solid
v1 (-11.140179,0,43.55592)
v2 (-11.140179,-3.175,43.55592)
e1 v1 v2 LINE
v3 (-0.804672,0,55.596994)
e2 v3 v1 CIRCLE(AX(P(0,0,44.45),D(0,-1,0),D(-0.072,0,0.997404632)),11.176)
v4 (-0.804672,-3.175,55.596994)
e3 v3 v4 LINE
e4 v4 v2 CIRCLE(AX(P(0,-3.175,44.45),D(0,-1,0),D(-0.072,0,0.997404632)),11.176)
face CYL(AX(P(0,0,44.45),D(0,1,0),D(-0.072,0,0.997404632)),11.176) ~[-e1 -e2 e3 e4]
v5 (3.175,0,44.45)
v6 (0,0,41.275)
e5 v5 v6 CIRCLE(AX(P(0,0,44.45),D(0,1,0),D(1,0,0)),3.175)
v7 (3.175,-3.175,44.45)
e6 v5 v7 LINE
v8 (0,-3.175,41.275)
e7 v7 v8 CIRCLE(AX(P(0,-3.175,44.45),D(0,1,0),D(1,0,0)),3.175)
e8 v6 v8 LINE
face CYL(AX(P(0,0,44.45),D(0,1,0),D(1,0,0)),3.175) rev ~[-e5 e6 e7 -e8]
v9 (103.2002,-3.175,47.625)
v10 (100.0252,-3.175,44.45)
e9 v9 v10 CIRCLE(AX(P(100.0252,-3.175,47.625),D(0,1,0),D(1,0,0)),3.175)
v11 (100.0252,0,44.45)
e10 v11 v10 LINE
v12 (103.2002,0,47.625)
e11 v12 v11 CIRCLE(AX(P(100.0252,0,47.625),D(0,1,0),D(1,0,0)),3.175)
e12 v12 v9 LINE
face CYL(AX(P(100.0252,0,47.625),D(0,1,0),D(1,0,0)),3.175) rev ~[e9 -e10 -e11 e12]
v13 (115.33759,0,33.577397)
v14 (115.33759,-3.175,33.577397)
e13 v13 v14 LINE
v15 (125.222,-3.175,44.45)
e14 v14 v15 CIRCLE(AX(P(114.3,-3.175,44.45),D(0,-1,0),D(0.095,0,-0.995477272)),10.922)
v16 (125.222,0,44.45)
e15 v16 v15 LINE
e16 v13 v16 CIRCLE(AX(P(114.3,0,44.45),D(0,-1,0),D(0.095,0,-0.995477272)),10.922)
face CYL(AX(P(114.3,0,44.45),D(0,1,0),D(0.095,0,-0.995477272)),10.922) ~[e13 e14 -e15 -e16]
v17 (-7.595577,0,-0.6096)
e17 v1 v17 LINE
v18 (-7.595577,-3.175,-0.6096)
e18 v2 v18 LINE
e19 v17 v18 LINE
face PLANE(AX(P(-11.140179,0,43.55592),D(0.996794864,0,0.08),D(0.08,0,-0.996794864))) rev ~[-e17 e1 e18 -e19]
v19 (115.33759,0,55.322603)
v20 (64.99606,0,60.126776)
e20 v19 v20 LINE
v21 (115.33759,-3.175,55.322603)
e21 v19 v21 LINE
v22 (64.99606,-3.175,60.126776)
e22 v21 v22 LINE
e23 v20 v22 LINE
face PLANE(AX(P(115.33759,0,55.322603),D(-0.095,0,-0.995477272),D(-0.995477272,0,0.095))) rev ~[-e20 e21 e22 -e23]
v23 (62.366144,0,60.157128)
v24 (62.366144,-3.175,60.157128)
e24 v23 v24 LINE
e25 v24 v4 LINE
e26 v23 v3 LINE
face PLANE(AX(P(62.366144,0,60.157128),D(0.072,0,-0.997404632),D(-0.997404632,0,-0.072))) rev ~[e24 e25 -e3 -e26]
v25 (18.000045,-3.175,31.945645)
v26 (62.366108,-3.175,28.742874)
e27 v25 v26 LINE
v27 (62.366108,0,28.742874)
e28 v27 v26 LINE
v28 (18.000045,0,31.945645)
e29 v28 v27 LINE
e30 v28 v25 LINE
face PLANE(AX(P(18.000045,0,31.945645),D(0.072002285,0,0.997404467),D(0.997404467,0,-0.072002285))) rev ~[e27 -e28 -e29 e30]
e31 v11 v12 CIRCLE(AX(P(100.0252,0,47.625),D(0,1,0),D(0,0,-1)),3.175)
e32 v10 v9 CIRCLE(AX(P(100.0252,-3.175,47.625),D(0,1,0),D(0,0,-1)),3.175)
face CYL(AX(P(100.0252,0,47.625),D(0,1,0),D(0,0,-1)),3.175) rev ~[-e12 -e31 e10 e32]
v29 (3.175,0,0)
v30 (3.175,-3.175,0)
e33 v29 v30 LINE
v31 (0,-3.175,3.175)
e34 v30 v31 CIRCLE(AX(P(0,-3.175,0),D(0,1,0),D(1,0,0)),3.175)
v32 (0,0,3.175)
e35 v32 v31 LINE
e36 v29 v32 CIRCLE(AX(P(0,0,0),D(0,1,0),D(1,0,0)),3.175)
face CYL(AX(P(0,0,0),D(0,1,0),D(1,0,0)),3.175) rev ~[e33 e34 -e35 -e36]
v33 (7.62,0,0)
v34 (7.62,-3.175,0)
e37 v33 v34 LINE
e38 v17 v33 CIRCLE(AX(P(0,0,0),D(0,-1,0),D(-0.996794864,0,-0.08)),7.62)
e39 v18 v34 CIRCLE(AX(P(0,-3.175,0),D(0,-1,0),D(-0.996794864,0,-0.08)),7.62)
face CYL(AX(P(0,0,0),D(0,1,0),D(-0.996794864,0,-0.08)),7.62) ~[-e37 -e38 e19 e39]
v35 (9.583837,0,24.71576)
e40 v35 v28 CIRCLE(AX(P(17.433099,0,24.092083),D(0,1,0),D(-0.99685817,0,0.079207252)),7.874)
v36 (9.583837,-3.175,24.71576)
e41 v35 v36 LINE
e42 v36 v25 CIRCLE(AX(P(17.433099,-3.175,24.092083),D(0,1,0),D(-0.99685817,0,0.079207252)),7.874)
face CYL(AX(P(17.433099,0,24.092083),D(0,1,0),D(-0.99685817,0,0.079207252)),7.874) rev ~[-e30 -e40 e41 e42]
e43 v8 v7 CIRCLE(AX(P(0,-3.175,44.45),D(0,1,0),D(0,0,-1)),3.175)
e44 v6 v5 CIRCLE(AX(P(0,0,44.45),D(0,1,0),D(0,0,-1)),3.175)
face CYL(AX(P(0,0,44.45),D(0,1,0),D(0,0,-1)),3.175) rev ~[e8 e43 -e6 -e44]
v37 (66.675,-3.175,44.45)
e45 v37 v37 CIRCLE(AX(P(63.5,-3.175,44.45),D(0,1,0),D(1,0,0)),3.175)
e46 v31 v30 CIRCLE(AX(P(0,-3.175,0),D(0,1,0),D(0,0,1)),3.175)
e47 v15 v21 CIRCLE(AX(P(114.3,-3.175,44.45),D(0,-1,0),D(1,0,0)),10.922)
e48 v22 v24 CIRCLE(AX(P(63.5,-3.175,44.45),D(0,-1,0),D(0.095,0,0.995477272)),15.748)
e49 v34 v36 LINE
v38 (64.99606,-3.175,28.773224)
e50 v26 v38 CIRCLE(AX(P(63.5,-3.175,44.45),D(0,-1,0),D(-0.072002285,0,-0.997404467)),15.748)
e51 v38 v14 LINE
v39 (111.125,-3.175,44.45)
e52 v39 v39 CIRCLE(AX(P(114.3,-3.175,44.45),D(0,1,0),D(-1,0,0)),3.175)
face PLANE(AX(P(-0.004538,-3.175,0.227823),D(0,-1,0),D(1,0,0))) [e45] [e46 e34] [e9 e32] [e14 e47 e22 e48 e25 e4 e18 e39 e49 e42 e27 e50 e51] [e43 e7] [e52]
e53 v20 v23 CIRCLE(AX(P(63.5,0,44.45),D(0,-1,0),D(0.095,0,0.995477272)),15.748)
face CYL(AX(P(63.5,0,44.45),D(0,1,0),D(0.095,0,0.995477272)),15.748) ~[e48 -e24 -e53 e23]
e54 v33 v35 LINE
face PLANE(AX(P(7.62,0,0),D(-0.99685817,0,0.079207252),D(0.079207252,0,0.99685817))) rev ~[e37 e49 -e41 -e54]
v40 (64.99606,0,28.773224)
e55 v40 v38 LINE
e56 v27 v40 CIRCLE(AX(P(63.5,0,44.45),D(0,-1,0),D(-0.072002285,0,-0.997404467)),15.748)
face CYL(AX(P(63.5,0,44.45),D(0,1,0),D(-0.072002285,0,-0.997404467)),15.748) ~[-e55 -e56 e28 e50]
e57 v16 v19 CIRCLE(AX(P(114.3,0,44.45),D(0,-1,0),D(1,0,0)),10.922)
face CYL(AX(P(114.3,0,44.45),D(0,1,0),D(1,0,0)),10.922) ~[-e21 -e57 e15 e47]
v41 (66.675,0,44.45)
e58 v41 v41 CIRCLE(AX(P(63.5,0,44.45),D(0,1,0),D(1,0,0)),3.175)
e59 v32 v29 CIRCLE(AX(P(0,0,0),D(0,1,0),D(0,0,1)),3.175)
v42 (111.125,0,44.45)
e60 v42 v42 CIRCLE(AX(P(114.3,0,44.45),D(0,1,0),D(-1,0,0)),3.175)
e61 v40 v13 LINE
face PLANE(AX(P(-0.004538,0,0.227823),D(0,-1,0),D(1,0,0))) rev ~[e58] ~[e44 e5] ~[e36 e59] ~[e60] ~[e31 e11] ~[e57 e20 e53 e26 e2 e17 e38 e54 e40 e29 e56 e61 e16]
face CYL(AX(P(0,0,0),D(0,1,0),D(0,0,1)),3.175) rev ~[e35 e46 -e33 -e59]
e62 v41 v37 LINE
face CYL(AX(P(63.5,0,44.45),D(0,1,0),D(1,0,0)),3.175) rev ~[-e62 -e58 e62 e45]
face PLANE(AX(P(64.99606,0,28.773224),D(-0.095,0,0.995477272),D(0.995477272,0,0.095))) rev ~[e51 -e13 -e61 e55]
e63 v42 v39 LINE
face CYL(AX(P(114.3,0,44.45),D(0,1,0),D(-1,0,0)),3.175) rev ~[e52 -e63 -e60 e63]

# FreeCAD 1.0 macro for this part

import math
import FreeCAD as App
import Part
import Sketcher
Q = App.Units.Quantity

doc = App.newDocument("Part")
params = doc.addObject("Spreadsheet::Sheet", "Params")
for row, (alias, value) in enumerate([
    ("sketch1_radius", "0.3 in"),
    ("sketch1_diameter", "0.25 in"),
    ("sketch1_radius2", "0.62 in"),
    ("sketch1_radius3", "0.43 in"),
    ("sketch1_radius4", "0.44 in"),
    ("pad1_length", "0.125 in"),
], start=1):
    params.set(f"A{row}", alias)
    params.set(f"B{row}", "=" + value)
    params.setAlias(f"B{row}", alias)

body = doc.addObject("PartDesign::Body", "Body")

sketch1 = body.newObject("Sketcher::SketchObject", "Sketch")
sketch1.AttachmentSupport = (doc.getObject("XZ_Plane"), [""])
sketch1.MapMode = "FlatFace"
sketch1.addGeometry([
    Part.ArcOfCircle(Part.Circle(App.Vector(63.5, 44.4, 0), App.Vector(0, 0, 1), 15.7), math.radians(-94.13), math.radians(-84.55)),
    Part.LineSegment(App.Vector(65, 28.8, 0), App.Vector(115.3, 33.6, 0)),
    Part.ArcOfCircle(Part.Circle(App.Vector(114.3, 44.5, 0), App.Vector(0, 0, 1), 10.9), math.radians(-85), math.radians(0)),
    Part.ArcOfCircle(Part.Circle(App.Vector(114.3, 44.5, 0), App.Vector(0, 0, 1), 10.9), math.radians(0), math.radians(85)),
    Part.LineSegment(App.Vector(115.3, 55.3, 0), App.Vector(65, 60.1, 0)),
    Part.ArcOfCircle(Part.Circle(App.Vector(63.5, 44.5, 0), App.Vector(0, 0, 1), 15.7), math.radians(84.55), math.radians(94.13)),
    Part.LineSegment(App.Vector(62.4, 60.2, 0), App.Vector(-0.8, 55.6, 0)),
    Part.ArcOfCircle(Part.Circle(App.Vector(0, 44.5, 0), App.Vector(0, 0, 1), 11.2), math.radians(94), math.radians(185)),
    Part.LineSegment(App.Vector(-11.1, 43.6, 0), App.Vector(-7.6, -0.6, 0)),
    Part.ArcOfCircle(Part.Circle(App.Vector(0, 0, 0), App.Vector(0, 0, 1), 7.6), math.radians(-175), math.radians(0)),
    Part.LineSegment(App.Vector(7.6, 0, 0), App.Vector(9.6, 24.7, 0)),
    Part.ArcOfCircle(Part.Circle(App.Vector(17.4, 24.1, 0), App.Vector(0, 0, 1), 7.9), math.radians(86), math.radians(175)),
    Part.LineSegment(App.Vector(18, 31.9, 0), App.Vector(62.4, 28.7, 0)),
    Part.ArcOfCircle(Part.Circle(App.Vector(0, 44.5, 0), App.Vector(0, 0, 1), 3.2), math.radians(0), math.radians(270)),
    Part.ArcOfCircle(Part.Circle(App.Vector(0, 44.5, 0), App.Vector(0, 0, 1), 3.2), math.radians(-90), math.radians(0)),
    Part.ArcOfCircle(Part.Circle(App.Vector(0, 0, 0), App.Vector(0, 0, 1), 3.2), math.radians(0), math.radians(90)),
    Part.ArcOfCircle(Part.Circle(App.Vector(0, 0, 0), App.Vector(0, 0, 1), 3.2), math.radians(90), math.radians(360)),
    Part.Circle(App.Vector(63.5, 44.5, 0), App.Vector(0, 0, 1), 3.2),
    Part.ArcOfCircle(Part.Circle(App.Vector(100, 47.6, 0), App.Vector(0, 0, 1), 3.2), math.radians(0), math.radians(270)),
    Part.ArcOfCircle(Part.Circle(App.Vector(100, 47.6, 0), App.Vector(0, 0, 1), 3.2), math.radians(-90), math.radians(0)),
    Part.Circle(App.Vector(114.3, 44.5, 0), App.Vector(0, 0, 1), 3.2),
], False)
sketch1.addConstraint([
    Sketcher.Constraint("Tangent", 0, 2, 1, 1),
    Sketcher.Constraint("Tangent", 1, 2, 2, 1),
    Sketcher.Constraint("Tangent", 2, 2, 3, 1),
    Sketcher.Constraint("Tangent", 3, 2, 4, 1),
    Sketcher.Constraint("Tangent", 4, 2, 5, 1),
    Sketcher.Constraint("Tangent", 5, 2, 6, 1),
    Sketcher.Constraint("Tangent", 6, 2, 7, 1),
    Sketcher.Constraint("Tangent", 7, 2, 8, 1),
    Sketcher.Constraint("Tangent", 8, 2, 9, 1),
    Sketcher.Constraint("Coincident", 9, 2, 10, 1),
    Sketcher.Constraint("Tangent", 10, 2, 11, 2),
    Sketcher.Constraint("Tangent", 11, 1, 12, 1),
    Sketcher.Constraint("Tangent", 12, 2, 0, 1),
    Sketcher.Constraint("Tangent", 13, 1, 14, 2),
    Sketcher.Constraint("Coincident", 14, 1, 13, 2),
    Sketcher.Constraint("Tangent", 15, 1, 16, 2),
    Sketcher.Constraint("Coincident", 16, 1, 15, 2),
    Sketcher.Constraint("Tangent", 18, 1, 19, 2),
    Sketcher.Constraint("Coincident", 19, 1, 18, 2),
    Sketcher.Constraint("Coincident", 9, 3, -1, 1),
    Sketcher.Constraint("Coincident", 15, 3, -1, 1),
    Sketcher.Constraint("Coincident", 5, 3, 0, 3),
    Sketcher.Constraint("Coincident", 13, 3, 7, 3),
    Sketcher.Constraint("Coincident", 17, 3, 0, 3),
    Sketcher.Constraint("Coincident", 20, 3, 2, 3),
    Sketcher.Constraint("Equal", 2, 3),
    Sketcher.Constraint("Equal", 0, 5),
    Sketcher.Constraint("Equal", 14, 15),
    Sketcher.Constraint("Equal", 16, 17),
    Sketcher.Constraint("Equal", 17, 18),
    Sketcher.Constraint("Equal", 19, 20),
    Sketcher.Constraint("PointOnObject", 7, 3, -2),
    Sketcher.Constraint("PointOnObject", 9, 2, -1),
    Sketcher.Constraint("PointOnObject", 14, 1, -2),
    Sketcher.Constraint("PointOnObject", 15, 1, -1),
    Sketcher.Constraint("PointOnObject", 16, 1, -2),
    Sketcher.Constraint("Horizontal", 0, 3, 2, 3),
    Sketcher.Constraint("Horizontal", 5, 3, 7, 3),
    Sketcher.Constraint("Horizontal", 20, 3, 2, 2),
    Sketcher.Constraint("Horizontal", 2, 2, 13, 1),
    Sketcher.Constraint("Horizontal", 19, 3, 18, 1),
    Sketcher.Constraint("Horizontal", 13, 1, 19, 1),
    Sketcher.Constraint("Vertical", 18, 3, 19, 1),
    Sketcher.Constraint("Radius", 9, Q("0.3 in")),
    Sketcher.Constraint("Diameter", 17, Q("0.25 in")),
    Sketcher.Constraint("Radius", 0, Q("0.62 in")),
    Sketcher.Constraint("Radius", 2, Q("0.43 in")),
    Sketcher.Constraint("Radius", 7, Q("0.44 in")),
    Sketcher.Constraint("Radius", 11, Q("0.31 in")),
    Sketcher.Constraint("DistanceX", 0, 3, 2, 3, Q("2 in")),
    Sketcher.Constraint("DistanceX", -1, 1, 0, 3, Q("2.5 in")),
    Sketcher.Constraint("DistanceY", -1, 1, 0, 3, Q("1.75 in")),
    Sketcher.Constraint("DistanceX", -1, 1, 18, 3, Q("3.938 in")),
    Sketcher.Constraint("DistanceX", -1, 1, 11, 3, Q("17.433099 mm")),
    Sketcher.Constraint("DistanceY", -1, 1, 10, 2, Q("24.71576 mm")),
])
sketch1.setExpression("Constraints[43]", "Params.sketch1_radius")
sketch1.setExpression("Constraints[44]", "Params.sketch1_diameter")
sketch1.setExpression("Constraints[45]", "Params.sketch1_radius2")
sketch1.setExpression("Constraints[46]", "Params.sketch1_radius3")
sketch1.setExpression("Constraints[47]", "Params.sketch1_radius4")
pad1 = body.newObject("PartDesign::Pad", "Pad")
pad1.Profile = sketch1
pad1.setExpression("Length", "Params.pad1_length")

doc.recompute()
